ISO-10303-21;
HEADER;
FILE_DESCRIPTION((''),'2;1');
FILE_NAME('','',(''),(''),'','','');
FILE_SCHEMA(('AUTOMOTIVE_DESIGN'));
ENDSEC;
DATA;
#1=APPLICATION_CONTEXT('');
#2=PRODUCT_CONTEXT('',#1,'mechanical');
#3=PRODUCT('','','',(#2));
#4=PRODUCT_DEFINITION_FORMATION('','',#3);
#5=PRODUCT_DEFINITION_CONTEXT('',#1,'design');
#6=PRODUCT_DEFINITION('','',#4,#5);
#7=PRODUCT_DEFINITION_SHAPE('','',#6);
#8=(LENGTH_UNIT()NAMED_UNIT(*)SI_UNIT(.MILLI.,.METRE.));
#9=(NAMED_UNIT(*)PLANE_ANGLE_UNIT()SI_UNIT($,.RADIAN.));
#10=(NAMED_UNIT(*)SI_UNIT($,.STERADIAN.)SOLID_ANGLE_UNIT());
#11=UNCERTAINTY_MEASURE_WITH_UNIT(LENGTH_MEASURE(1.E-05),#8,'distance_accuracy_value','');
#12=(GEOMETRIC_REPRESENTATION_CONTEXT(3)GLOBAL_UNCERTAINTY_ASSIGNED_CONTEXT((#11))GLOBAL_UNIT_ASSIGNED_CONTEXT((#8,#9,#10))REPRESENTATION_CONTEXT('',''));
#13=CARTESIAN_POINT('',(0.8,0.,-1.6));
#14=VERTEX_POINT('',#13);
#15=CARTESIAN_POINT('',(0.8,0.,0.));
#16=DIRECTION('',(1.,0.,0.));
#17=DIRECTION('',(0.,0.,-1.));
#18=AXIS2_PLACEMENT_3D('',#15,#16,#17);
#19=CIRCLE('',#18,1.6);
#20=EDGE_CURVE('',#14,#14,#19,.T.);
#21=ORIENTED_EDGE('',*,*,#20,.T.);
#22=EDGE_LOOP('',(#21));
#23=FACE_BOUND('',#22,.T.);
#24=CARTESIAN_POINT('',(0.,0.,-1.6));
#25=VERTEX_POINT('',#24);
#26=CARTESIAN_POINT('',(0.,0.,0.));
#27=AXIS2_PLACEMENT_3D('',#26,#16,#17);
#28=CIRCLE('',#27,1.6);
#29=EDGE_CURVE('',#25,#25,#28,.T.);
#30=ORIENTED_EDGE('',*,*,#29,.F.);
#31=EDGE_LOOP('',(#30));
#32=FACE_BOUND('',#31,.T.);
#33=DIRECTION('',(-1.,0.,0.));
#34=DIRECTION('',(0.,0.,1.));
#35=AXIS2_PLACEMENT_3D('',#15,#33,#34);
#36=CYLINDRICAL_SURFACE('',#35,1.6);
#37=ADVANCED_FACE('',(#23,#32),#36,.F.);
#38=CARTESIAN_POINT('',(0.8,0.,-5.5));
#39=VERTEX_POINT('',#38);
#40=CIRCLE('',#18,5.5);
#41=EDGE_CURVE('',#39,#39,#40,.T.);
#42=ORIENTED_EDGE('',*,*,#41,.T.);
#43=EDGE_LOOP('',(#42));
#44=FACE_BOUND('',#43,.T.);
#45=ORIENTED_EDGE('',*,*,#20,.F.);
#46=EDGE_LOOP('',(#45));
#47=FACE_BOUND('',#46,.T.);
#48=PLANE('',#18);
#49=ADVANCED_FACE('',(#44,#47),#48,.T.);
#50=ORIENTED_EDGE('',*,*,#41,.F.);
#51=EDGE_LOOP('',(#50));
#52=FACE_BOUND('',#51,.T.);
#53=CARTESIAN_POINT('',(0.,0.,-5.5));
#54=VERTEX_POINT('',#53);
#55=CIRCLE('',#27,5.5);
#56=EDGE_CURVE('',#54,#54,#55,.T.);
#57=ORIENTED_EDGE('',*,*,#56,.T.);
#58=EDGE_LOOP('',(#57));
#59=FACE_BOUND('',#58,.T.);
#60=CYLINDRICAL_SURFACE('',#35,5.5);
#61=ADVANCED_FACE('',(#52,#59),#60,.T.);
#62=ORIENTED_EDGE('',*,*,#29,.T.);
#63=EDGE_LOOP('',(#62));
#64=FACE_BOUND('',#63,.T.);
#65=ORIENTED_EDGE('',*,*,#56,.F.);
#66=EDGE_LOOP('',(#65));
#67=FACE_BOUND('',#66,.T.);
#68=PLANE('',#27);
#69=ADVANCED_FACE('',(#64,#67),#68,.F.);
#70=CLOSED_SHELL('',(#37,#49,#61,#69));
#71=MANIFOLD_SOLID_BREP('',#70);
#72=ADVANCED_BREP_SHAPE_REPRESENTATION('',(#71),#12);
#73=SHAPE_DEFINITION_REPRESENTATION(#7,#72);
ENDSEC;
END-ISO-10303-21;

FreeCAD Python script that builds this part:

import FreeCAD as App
import Part
import Sketcher
Q = App.Units.Quantity

doc = App.newDocument("Part")
body = doc.addObject("PartDesign::Body", "Body")

# Sketch on YZ plane
sketch1 = doc.addObject("Sketcher::SketchObject", "Sketch")
body.addObject(sketch1)
sketch1.AttachmentSupport = (doc.YZ_Plane, [""])
sketch1.MapMode = "FlatFace"
sketch1.addGeometry(Part.Circle(App.Vector(0, 0, 0), App.Vector(0, 0, 1), 5.5), False)
sketch1.addGeometry(Part.Circle(App.Vector(0, 0, 0), App.Vector(0, 0, 1), 1.6), False)
sketch1.addConstraint(Sketcher.Constraint("Coincident", 0, 3, -1, 1))
sketch1.addConstraint(Sketcher.Constraint("Coincident", 1, 3, -1, 1))
sketch1.addConstraint(Sketcher.Constraint("Diameter", 0, Q("11 mm")))
sketch1.addConstraint(Sketcher.Constraint("Diameter", 1, Q("3.2 mm")))
pad1 = doc.addObject("PartDesign::Pad", "Pad")
body.addObject(pad1)
pad1.Profile = sketch1
pad1.Length = 0.8

doc.recompute()
